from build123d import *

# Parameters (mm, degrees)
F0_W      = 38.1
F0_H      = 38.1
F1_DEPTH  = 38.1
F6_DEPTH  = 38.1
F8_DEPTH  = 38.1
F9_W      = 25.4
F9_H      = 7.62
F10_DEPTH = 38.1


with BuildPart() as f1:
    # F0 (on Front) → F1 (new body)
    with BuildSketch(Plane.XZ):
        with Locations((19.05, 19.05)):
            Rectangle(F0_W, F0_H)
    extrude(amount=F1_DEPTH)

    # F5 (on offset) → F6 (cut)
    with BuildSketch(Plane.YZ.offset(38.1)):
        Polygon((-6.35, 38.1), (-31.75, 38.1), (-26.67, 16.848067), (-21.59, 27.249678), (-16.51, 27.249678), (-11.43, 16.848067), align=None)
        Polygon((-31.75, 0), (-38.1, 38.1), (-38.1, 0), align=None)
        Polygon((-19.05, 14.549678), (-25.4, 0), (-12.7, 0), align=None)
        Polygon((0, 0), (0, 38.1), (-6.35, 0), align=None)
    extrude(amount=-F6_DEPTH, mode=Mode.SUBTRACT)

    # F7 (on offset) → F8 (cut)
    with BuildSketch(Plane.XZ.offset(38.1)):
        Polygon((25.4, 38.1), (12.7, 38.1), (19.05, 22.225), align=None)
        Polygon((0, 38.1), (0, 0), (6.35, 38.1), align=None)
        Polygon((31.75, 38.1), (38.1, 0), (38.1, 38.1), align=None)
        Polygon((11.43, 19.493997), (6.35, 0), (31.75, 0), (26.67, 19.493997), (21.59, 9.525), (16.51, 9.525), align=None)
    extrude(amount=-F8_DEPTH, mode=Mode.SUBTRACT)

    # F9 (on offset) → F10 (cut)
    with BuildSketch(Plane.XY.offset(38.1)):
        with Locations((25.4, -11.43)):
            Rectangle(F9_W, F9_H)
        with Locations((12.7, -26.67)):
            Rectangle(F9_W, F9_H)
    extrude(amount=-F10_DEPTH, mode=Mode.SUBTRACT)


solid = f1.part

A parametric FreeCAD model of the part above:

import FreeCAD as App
import Part
import Sketcher
Q = App.Units.Quantity


def add_polygon(sketch, points):
    """Adds a closed chain of lines whose ends are joined by coincident constraints."""
    first, n = sketch.GeometryCount, len(points)
    for a, b in zip(points, points[1:] + points[:1]):
        sketch.addGeometry(Part.LineSegment(App.Vector(*a, 0), App.Vector(*b, 0)), False)
    for i in range(n):
        sketch.addConstraint(Sketcher.Constraint("Coincident", first + i, 2, first + (i + 1) % n, 1))

doc = App.newDocument("Part")
body = doc.addObject("PartDesign::Body", "Body")

# Sketch on XZ plane
sketch1 = body.newObject("Sketcher::SketchObject", "Sketch")
sketch1.AttachmentSupport = (doc.getObject("XZ_Plane"), [""])
sketch1.MapMode = "FlatFace"
add_polygon(sketch1, [(0, 38.1), (0, 0), (38.1, 0), (38.1, 38.1)])  # lines 0-3
sketch1.addConstraint([
    Sketcher.Constraint("Vertical", 0),
    Sketcher.Constraint("Horizontal", 1),
    Sketcher.Constraint("Vertical", 2),
    Sketcher.Constraint("Horizontal", 3),
    Sketcher.Constraint("Coincident", 0, 2, -1, 1),
    Sketcher.Constraint("Equal", 3, 0),
    Sketcher.Constraint("DistanceX", 1, 1, 1, 2, Q("1.5 in")),
])
pad1 = body.newObject("PartDesign::Pad", "Pad")
pad1.Profile = sketch1
pad1.Length = Q("1.5 in")

# Sketch on YZ plane
sketch2 = body.newObject("Sketcher::SketchObject", "Sketch001")
sketch2.AttachmentSupport = (doc.getObject("YZ_Plane"), [""])
sketch2.MapMode = "FlatFace"
sketch2.AttachmentOffset = App.Placement(App.Vector(0, 0, 1.5 * 25.4), App.Rotation())
add_polygon(sketch2, [(-6.35, 38.1), (-31.75, 38.1), (-26.67, 16.848067), (-21.59, 27.249678), (-16.51, 27.249678), (-11.43, 16.848067)])  # lines 0-5
add_polygon(sketch2, [(-31.75, 0), (-38.1, 38.1), (-38.1, 0)])  # lines 6-8
add_polygon(sketch2, [(-19.05, 14.549678), (-25.4, 0), (-12.7, 0)])  # lines 9-11
add_polygon(sketch2, [(0, 0), (0, 38.1), (-6.35, 0)])  # lines 12-14
sketch2.addConstraint([
    Sketcher.Constraint("Horizontal", 0),
    Sketcher.Constraint("Horizontal", 3),
    Sketcher.Constraint("Vertical", 7),
    Sketcher.Constraint("Horizontal", 8),
    Sketcher.Constraint("Horizontal", 10),
    Sketcher.Constraint("Vertical", 12),
    Sketcher.Constraint("Horizontal", 14),
    Sketcher.Constraint("Coincident", 14, 2, -1, 1),
    Sketcher.Constraint("PointOnObject", 7, 2, -1),
    Sketcher.Constraint("PointOnObject", 9, 2, -1),
    Sketcher.Constraint("Horizontal", 1, 2, 4, 2),
    Sketcher.Constraint("Horizontal", 5, 2, 6, 2),
    Sketcher.Constraint("Horizontal", 6, 2, 12, 2),
    Sketcher.Constraint("Vertical", 0, 2, 8, 2),
    Sketcher.Constraint("Vertical", 5, 2, 13, 2),
    Sketcher.Constraint("Equal", 8, 14),
    Sketcher.Constraint("Equal", 2, 4),
    Sketcher.Constraint("Equal", 1, 5),
    Sketcher.Constraint("Equal", 9, 11),
    Sketcher.Constraint("DistanceX", 0, 2, 0, 1, Q("1 in")),
    Sketcher.Constraint("DistanceX", 3, 1, 3, 2, Q("0.2 in")),
    Sketcher.Constraint("DistanceX", 10, 1, 10, 2, Q("0.5 in")),
    Sketcher.Constraint("DistanceY", 7, 2, 7, 1, Q("1.5 in")),
    Sketcher.Constraint("DistanceX", 9, 2, -1, 1, Q("1 in")),
    Sketcher.Constraint("DistanceX", 7, 2, 10, 2, Q("1 in")),
    Sketcher.Constraint("DistanceX", 0, 2, 1, 2, Q("0.2 in")),
    Sketcher.Constraint("DistanceY", 11, 2, 2, 2, Q("0.5 in")),
    Sketcher.Constraint("Distance", 9, Q("0.625 in")),
    Sketcher.Constraint("DistanceY", 1, 2, 2, 2, 10.401611),
])
pocket1 = body.newObject("PartDesign::Pocket", "Pocket")
pocket1.Profile = sketch2
pocket1.Length = Q("1.5 in")

# Sketch on XZ plane
sketch3 = body.newObject("Sketcher::SketchObject", "Sketch002")
sketch3.AttachmentSupport = (doc.getObject("XZ_Plane"), [""])
sketch3.MapMode = "FlatFace"
sketch3.AttachmentOffset = App.Placement(App.Vector(0, 0, 1.5 * 25.4), App.Rotation())
add_polygon(sketch3, [(25.4, 38.1), (12.7, 38.1), (19.05, 22.225)])  # lines 0-2
add_polygon(sketch3, [(0, 38.1), (0, 0), (6.35, 38.1)])  # lines 3-5
add_polygon(sketch3, [(31.75, 38.1), (38.1, 0), (38.1, 38.1)])  # lines 6-8
add_polygon(sketch3, [(11.43, 19.493997), (6.35, 0), (31.75, 0), (26.67, 19.493997), (21.59, 9.525), (16.51, 9.525)])  # lines 9-14
sketch3.addConstraint([
    Sketcher.Constraint("Horizontal", 0),
    Sketcher.Constraint("Vertical", 3),
    Sketcher.Constraint("Horizontal", 5),
    Sketcher.Constraint("Vertical", 7),
    Sketcher.Constraint("Horizontal", 8),
    Sketcher.Constraint("Horizontal", 10),
    Sketcher.Constraint("Horizontal", 13),
    Sketcher.Constraint("Coincident", 3, 2, -1, 1),
    Sketcher.Constraint("PointOnObject", 6, 2, -1),
    Sketcher.Constraint("PointOnObject", 9, 2, -1),
    Sketcher.Constraint("Horizontal", 2, 2, 4, 2),
    Sketcher.Constraint("Horizontal", 5, 2, 7, 2),
    Sketcher.Constraint("Horizontal", 11, 2, 14, 2),
    Sketcher.Constraint("Vertical", 4, 2, 9, 2),
    Sketcher.Constraint("Vertical", 8, 2, 10, 2),
    Sketcher.Constraint("Equal", 5, 8),
    Sketcher.Constraint("Equal", 1, 2),
    Sketcher.Constraint("Equal", 9, 11),
    Sketcher.Constraint("Equal", 12, 14),
    Sketcher.Constraint("DistanceX", 10, 1, 10, 2, Q("1 in")),
    Sketcher.Constraint("DistanceX", 0, 2, 0, 1, Q("0.5 in")),
    Sketcher.Constraint("DistanceX", 13, 2, 13, 1, Q("0.2 in")),
    Sketcher.Constraint("DistanceY", 3, 2, 3, 1, Q("1.5 in")),
    Sketcher.Constraint("DistanceX", -1, 1, 2, 2, Q("1 in")),
    Sketcher.Constraint("DistanceX", 0, 2, 6, 2, Q("1 in")),
    Sketcher.Constraint("DistanceX", 1, 2, 11, 2, Q("0.3 in")),
    Sketcher.Constraint("DistanceY", 12, 2, 1, 2, Q("0.5 in")),
    Sketcher.Constraint("DistanceY", -1, 1, 1, 2, Q("0.875 in")),
    Sketcher.Constraint("Distance", 9, 20.145032),
])
pocket2 = body.newObject("PartDesign::Pocket", "Pocket001")
pocket2.Profile = sketch3
pocket2.Length = Q("1.5 in")

# Sketch on XY plane
sketch4 = body.newObject("Sketcher::SketchObject", "Sketch003")
sketch4.AttachmentSupport = (doc.getObject("XY_Plane"), [""])
sketch4.MapMode = "FlatFace"
sketch4.AttachmentOffset = App.Placement(App.Vector(0, 0, 1.5 * 25.4), App.Rotation())
add_polygon(sketch4, [(12.7, -7.62), (12.7, -15.24), (38.1, -15.24), (38.1, -7.62)])  # lines 0-3
add_polygon(sketch4, [(0, -22.86), (0, -30.48), (25.4, -30.48), (25.4, -22.86)])  # lines 4-7
sketch4.addConstraint([
    Sketcher.Constraint("Vertical", 0),
    Sketcher.Constraint("Horizontal", 1),
    Sketcher.Constraint("Vertical", 2),
    Sketcher.Constraint("Horizontal", 3),
    Sketcher.Constraint("Vertical", 4),
    Sketcher.Constraint("Horizontal", 5),
    Sketcher.Constraint("Vertical", 6),
    Sketcher.Constraint("Horizontal", 7),
    Sketcher.Constraint("PointOnObject", 4, 2, -2),
    Sketcher.Constraint("Equal", 3, 5),
    Sketcher.Constraint("Equal", 2, 4),
    Sketcher.Constraint("DistanceX", 1, 1, 1, 2, Q("1 in")),
    Sketcher.Constraint("DistanceY", 0, 2, 0, 1, Q("0.3 in")),
    Sketcher.Constraint("DistanceX", -1, 1, 0, 2, Q("0.5 in")),
    Sketcher.Constraint("DistanceY", 0, 2, -1, 1, Q("0.6 in")),
    Sketcher.Constraint("DistanceY", 4, 2, -1, 1, Q("1.2 in")),
])
pocket3 = body.newObject("PartDesign::Pocket", "Pocket002")
pocket3.Profile = sketch4
pocket3.Length = Q("1.5 in")

doc.recompute()
